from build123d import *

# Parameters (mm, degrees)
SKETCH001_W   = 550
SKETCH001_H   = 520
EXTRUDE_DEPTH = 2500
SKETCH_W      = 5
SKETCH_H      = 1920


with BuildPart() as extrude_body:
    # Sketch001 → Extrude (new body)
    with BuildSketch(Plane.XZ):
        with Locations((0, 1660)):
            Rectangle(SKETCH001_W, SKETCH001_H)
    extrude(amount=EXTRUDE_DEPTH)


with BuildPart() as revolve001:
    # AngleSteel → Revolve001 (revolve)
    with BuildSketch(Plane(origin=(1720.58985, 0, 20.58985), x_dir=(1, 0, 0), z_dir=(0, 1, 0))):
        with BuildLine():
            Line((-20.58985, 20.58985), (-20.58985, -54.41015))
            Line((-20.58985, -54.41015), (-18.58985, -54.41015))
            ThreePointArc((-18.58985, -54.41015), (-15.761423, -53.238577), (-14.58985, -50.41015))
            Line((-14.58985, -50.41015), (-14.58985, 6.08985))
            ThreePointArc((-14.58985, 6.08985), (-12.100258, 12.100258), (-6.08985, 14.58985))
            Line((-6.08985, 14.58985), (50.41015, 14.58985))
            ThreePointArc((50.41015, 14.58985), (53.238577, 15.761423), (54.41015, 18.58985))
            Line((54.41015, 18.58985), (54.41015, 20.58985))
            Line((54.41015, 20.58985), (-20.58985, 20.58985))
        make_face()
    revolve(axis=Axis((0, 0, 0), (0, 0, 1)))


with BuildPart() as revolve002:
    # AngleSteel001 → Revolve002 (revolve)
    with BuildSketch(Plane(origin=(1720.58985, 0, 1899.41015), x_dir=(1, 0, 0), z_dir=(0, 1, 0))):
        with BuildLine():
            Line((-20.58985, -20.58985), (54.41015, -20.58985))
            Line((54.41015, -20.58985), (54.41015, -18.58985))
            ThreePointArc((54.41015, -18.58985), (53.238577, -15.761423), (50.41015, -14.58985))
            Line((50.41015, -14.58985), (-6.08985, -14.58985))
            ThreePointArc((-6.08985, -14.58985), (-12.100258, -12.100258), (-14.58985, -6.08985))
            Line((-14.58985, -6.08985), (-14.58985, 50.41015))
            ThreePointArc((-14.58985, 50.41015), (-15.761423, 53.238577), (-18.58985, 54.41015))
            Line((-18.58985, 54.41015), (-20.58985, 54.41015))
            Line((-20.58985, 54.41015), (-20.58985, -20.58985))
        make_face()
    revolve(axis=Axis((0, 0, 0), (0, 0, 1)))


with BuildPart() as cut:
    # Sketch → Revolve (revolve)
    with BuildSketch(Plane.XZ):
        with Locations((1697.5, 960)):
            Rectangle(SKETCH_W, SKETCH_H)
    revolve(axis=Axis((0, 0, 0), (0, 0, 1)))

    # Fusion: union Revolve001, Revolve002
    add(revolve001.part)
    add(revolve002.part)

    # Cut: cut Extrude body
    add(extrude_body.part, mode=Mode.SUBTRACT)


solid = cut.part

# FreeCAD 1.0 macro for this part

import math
import FreeCAD as App
import Part
import Sketcher

V = App.Vector
Q = App.Units.Quantity

doc = App.newDocument("Part")
body = doc.addObject("PartDesign::Body", "Body")

# Sketch on XZ plane
sketch1 = body.newObject("Sketcher::SketchObject", "Sketch")
sketch1.AttachmentSupport = (doc.getObject("XZ_Plane"), [""])
sketch1.MapMode = "FlatFace"
sketch1.addGeometry([
    Part.LineSegment(V(-275, 1920, 0), V(-275, 1400, 0)),
    Part.LineSegment(V(-275, 1400, 0), V(275, 1400, 0)),
    Part.LineSegment(V(275, 1400, 0), V(275, 1920, 0)),
    Part.LineSegment(V(275, 1920, 0), V(-275, 1920, 0)),
], False)
sketch1.addConstraint([
    Sketcher.Constraint("Coincident", 0, 2, 1, 1),
    Sketcher.Constraint("Coincident", 1, 2, 2, 1),
    Sketcher.Constraint("Coincident", 2, 2, 3, 1),
    Sketcher.Constraint("Coincident", 3, 2, 0, 1),
    Sketcher.Constraint("Vertical", 0),
    Sketcher.Constraint("Horizontal", 1),
    Sketcher.Constraint("Vertical", 2),
    Sketcher.Constraint("Horizontal", 3),
    Sketcher.Constraint("DistanceX", 1, 1, 1, 2, Q("550 mm")),
    Sketcher.Constraint("DistanceY", 0, 2, 0, 1, Q("520 mm")),
    Sketcher.Constraint("DistanceX", 0, 2, -1, 1, Q("275 mm")),
    Sketcher.Constraint("DistanceY", -1, 1, 0, 2, Q("1400 mm")),
])
pad1 = body.newObject("PartDesign::Pad", "Pad")
pad1.Profile = sketch1
pad1.Length = 2500
body2 = doc.addObject("PartDesign::Body", "Body001")

# Sketch on XZ plane
sketch2 = body2.newObject("Sketcher::SketchObject", "Sketch001")
sketch2.AttachmentSupport = (doc.getObject("XZ_Plane001"), [""])
sketch2.MapMode = "FlatFace"
sketch2.addGeometry([
    Part.LineSegment(V(1700, 0, 0), V(1700, 75, 0)),  # 0
    Part.LineSegment(V(1700, 75, 0), V(1702, 75, 0)),  # 1
    Part.ArcOfCircle(Part.Circle(V(1702, 71, 0), V(0, 0, 1), 4), math.radians(0.000006), math.radians(89.999994)),  # 2
    Part.LineSegment(V(1706, 71, 0), V(1706, 14.5, 0)),  # 3
    Part.ArcOfCircle(Part.Circle(V(1714.499999, 14.499999, 0), V(0, 0, 1), 8.499999), math.radians(179.999992), math.radians(270.000008)),  # 4
    Part.LineSegment(V(1714.5, 6, 0), V(1771, 6, 0)),  # 5
    Part.ArcOfCircle(Part.Circle(V(1771, 2, 0), V(0, 0, 1), 4), math.radians(0.000006), math.radians(89.999994)),  # 6
    Part.LineSegment(V(1775, 2, 0), V(1775, 0, 0)),  # 7
    Part.LineSegment(V(1775, 0, 0), V(1700, 0, 0)),  # 8
], False)
sketch2.addConstraint([
    Sketcher.Constraint("Coincident", 0, 2, 1, 1),
    Sketcher.Constraint("Tangent", 1, 2, 2, 2),
    Sketcher.Constraint("Tangent", 2, 1, 3, 1),
    Sketcher.Constraint("Tangent", 3, 2, 4, 1),
    Sketcher.Constraint("Tangent", 4, 2, 5, 1),
    Sketcher.Constraint("Tangent", 5, 2, 6, 2),
    Sketcher.Constraint("Tangent", 6, 1, 7, 1),
    Sketcher.Constraint("Coincident", 7, 2, 8, 1),
    Sketcher.Constraint("Coincident", 8, 2, 0, 1),
    Sketcher.Constraint("Vertical", 0),
    Sketcher.Constraint("Horizontal", 1),
    Sketcher.Constraint("Vertical", 3),
    Sketcher.Constraint("Horizontal", 5),
    Sketcher.Constraint("Vertical", 7),
    Sketcher.Constraint("Horizontal", 8),
    Sketcher.Constraint("Equal", 2, 6),
    Sketcher.Constraint("PointOnObject", 7, 2, -1),
    Sketcher.Constraint("Equal", 8, 0),
    Sketcher.Constraint("Equal", 5, 3),
    Sketcher.Constraint("Radius", 2, Q("4 mm")),
    Sketcher.Constraint("Radius", 4, Q("8.499999 mm")),
    Sketcher.Constraint("DistanceX", 1, 1, 1, 2, Q("2 mm")),
    Sketcher.Constraint("DistanceX", 8, 2, 8, 1, Q("75 mm")),
    Sketcher.Constraint("DistanceX", -1, 1, 2, 3, Q("1702 mm")),
])
revolution = body2.newObject("PartDesign::Revolution", "Revolution")
revolution.Profile = sketch2
revolution.ReferenceAxis = (sketch2, ["V_Axis"])
revolution.Angle = 360
body3 = doc.addObject("PartDesign::Body", "Body002")

# Sketch on XZ plane
sketch3 = body3.newObject("Sketcher::SketchObject", "Sketch002")
sketch3.AttachmentSupport = (doc.getObject("XZ_Plane002"), [""])
sketch3.MapMode = "FlatFace"
sketch3.addGeometry([
    Part.LineSegment(V(1700, 1920, 0), V(1775, 1920, 0)),  # 0
    Part.LineSegment(V(1775, 1920, 0), V(1775, 1918, 0)),  # 1
    Part.ArcOfCircle(Part.Circle(V(1771, 1918, 0), V(0, 0, 1), 4), math.radians(-89.999994), math.radians(-0.000006)),  # 2
    Part.LineSegment(V(1771, 1914, 0), V(1714.5, 1914, 0)),  # 3
    Part.ArcOfCircle(Part.Circle(V(1714.499999, 1905.500001, 0), V(0, 0, 1), 8.499999), math.radians(89.999992), math.radians(180.000008)),  # 4
    Part.LineSegment(V(1706, 1905.5, 0), V(1706, 1849, 0)),  # 5
    Part.ArcOfCircle(Part.Circle(V(1702, 1849, 0), V(0, 0, 1), 4), math.radians(-89.999994), math.radians(-0.000006)),  # 6
    Part.LineSegment(V(1702, 1845, 0), V(1700, 1845, 0)),  # 7
    Part.LineSegment(V(1700, 1845, 0), V(1700, 1920, 0)),  # 8
], False)
sketch3.addConstraint([
    Sketcher.Constraint("Coincident", 0, 2, 1, 1),
    Sketcher.Constraint("Tangent", 1, 2, 2, 2),
    Sketcher.Constraint("Tangent", 2, 1, 3, 1),
    Sketcher.Constraint("Tangent", 3, 2, 4, 1),
    Sketcher.Constraint("Tangent", 4, 2, 5, 1),
    Sketcher.Constraint("Tangent", 5, 2, 6, 2),
    Sketcher.Constraint("Tangent", 6, 1, 7, 1),
    Sketcher.Constraint("Coincident", 7, 2, 8, 1),
    Sketcher.Constraint("Coincident", 8, 2, 0, 1),
    Sketcher.Constraint("Horizontal", 0),
    Sketcher.Constraint("Vertical", 1),
    Sketcher.Constraint("Horizontal", 3),
    Sketcher.Constraint("Vertical", 5),
    Sketcher.Constraint("Horizontal", 7),
    Sketcher.Constraint("Vertical", 8),
    Sketcher.Constraint("Equal", 2, 6),
    Sketcher.Constraint("Equal", 7, 1),
    Sketcher.Constraint("Equal", 3, 5),
    Sketcher.Constraint("Radius", 2, Q("4 mm")),
    Sketcher.Constraint("Radius", 4, Q("8.499999 mm")),
    Sketcher.Constraint("DistanceX", 0, 1, 0, 2, Q("75 mm")),
    Sketcher.Constraint("DistanceX", 7, 2, 7, 1, Q("2 mm")),
    Sketcher.Constraint("DistanceX", -1, 1, 2, 3, Q("1771 mm")),
    Sketcher.Constraint("DistanceY", -1, 1, 2, 3, Q("1918 mm")),
])
revolution2 = body3.newObject("PartDesign::Revolution", "Revolution001")
revolution2.Profile = sketch3
revolution2.ReferenceAxis = (sketch3, ["V_Axis"])
revolution2.Angle = 360
body4 = doc.addObject("PartDesign::Body", "Body003")

# Sketch on XZ plane
sketch4 = body4.newObject("Sketcher::SketchObject", "Sketch003")
sketch4.AttachmentSupport = (doc.getObject("XZ_Plane003"), [""])
sketch4.MapMode = "FlatFace"
sketch4.addGeometry([
    Part.LineSegment(V(1695, 1920, 0), V(1695, 0, 0)),
    Part.LineSegment(V(1695, 0, 0), V(1700, 0, 0)),
    Part.LineSegment(V(1700, 0, 0), V(1700, 1920, 0)),
    Part.LineSegment(V(1700, 1920, 0), V(1695, 1920, 0)),
], False)
sketch4.addConstraint([
    Sketcher.Constraint("Coincident", 0, 2, 1, 1),
    Sketcher.Constraint("Coincident", 1, 2, 2, 1),
    Sketcher.Constraint("Coincident", 2, 2, 3, 1),
    Sketcher.Constraint("Coincident", 3, 2, 0, 1),
    Sketcher.Constraint("Vertical", 0),
    Sketcher.Constraint("Horizontal", 1),
    Sketcher.Constraint("Vertical", 2),
    Sketcher.Constraint("Horizontal", 3),
    Sketcher.Constraint("PointOnObject", 0, 2, -1),
    Sketcher.Constraint("DistanceX", 1, 1, 1, 2, Q("5 mm")),
    Sketcher.Constraint("DistanceY", 0, 2, 0, 1, Q("1920 mm")),
    Sketcher.Constraint("DistanceX", -1, 1, 0, 2, Q("1695 mm")),
])
revolution3 = body4.newObject("PartDesign::Revolution", "Revolution002")
revolution3.Profile = sketch4
revolution3.ReferenceAxis = (sketch4, ["V_Axis"])
revolution3.Angle = 360
doc.recompute()

boolean = body4.newObject("PartDesign::Boolean", "Boolean")
boolean.Type = "Fuse"
boolean.addObjects([body2])
doc.recompute()

boolean2 = body4.newObject("PartDesign::Boolean", "Boolean001")
boolean2.Type = "Fuse"
boolean2.addObjects([body3])
doc.recompute()

boolean3 = body4.newObject("PartDesign::Boolean", "Boolean002")
boolean3.Type = "Cut"
boolean3.addObjects([body])

doc.recompute()
